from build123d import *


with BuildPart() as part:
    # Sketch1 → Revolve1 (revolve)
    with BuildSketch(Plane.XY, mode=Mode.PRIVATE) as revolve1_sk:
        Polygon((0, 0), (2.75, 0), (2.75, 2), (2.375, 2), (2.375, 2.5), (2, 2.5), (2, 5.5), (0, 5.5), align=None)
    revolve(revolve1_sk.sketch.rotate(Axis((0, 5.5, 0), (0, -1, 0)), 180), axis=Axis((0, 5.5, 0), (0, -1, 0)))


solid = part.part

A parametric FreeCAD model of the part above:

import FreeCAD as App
import Part
import Sketcher


def add_polygon(sketch, points):
    """Adds a closed chain of lines whose ends are joined by coincident constraints."""
    first, n = sketch.GeometryCount, len(points)
    for a, b in zip(points, points[1:] + points[:1]):
        sketch.addGeometry(Part.LineSegment(App.Vector(*a, 0), App.Vector(*b, 0)), False)
    for i in range(n):
        sketch.addConstraint(Sketcher.Constraint("Coincident", first + i, 2, first + (i + 1) % n, 1))

doc = App.newDocument("Part")
params = doc.addObject("Spreadsheet::Sheet", "Params")
for row, (alias, value) in enumerate([
    ("sketch1_width", "2 mm"),
    ("sketch1_height", "3 mm"),
    ("sketch1_height2", "0.5 mm"),
    ("sketch1_width2", "2.75 mm"),
    ("revolution_angle", "360 deg"),
], start=1):
    params.set(f"A{row}", alias)
    params.set(f"B{row}", "=" + value)
    params.setAlias(f"B{row}", alias)

body = doc.addObject("PartDesign::Body", "Body")

# Sketch on XY plane
sketch1 = doc.addObject("Sketcher::SketchObject", "Sketch")
body.addObject(sketch1)
sketch1.AttachmentSupport = (doc.XY_Plane, [""])
sketch1.MapMode = "FlatFace"
add_polygon(sketch1, [(0, 0), (2.75, 0), (2.75, 2), (2.38, 2), (2.38, 2.5), (2, 2.5), (2, 5.5), (0, 5.5)])  # lines 0-7
sketch1.addConstraint(Sketcher.Constraint("Horizontal", 0))
sketch1.addConstraint(Sketcher.Constraint("Vertical", 1))
sketch1.addConstraint(Sketcher.Constraint("Horizontal", 2))
sketch1.addConstraint(Sketcher.Constraint("Vertical", 3))
sketch1.addConstraint(Sketcher.Constraint("Horizontal", 4))
sketch1.addConstraint(Sketcher.Constraint("Vertical", 5))
sketch1.addConstraint(Sketcher.Constraint("Horizontal", 6))
sketch1.addConstraint(Sketcher.Constraint("Vertical", 7))
sketch1.addConstraint(Sketcher.Constraint("Coincident", 7, 2, -1, 1))
sketch1.addConstraint(Sketcher.Constraint("Equal", 2, 4))
sketch1.addConstraint(Sketcher.Constraint("Equal", 6, 1))
sketch1.addConstraint(Sketcher.Constraint("DistanceX", 6, 2, 6, 1, 2.0))
sketch1.addConstraint(Sketcher.Constraint("DistanceY", 5, 1, 5, 2, 3.0))
sketch1.addConstraint(Sketcher.Constraint("DistanceY", 3, 1, 3, 2, 0.5))
sketch1.addConstraint(Sketcher.Constraint("DistanceX", 0, 1, 0, 2, 2.75))
sketch1.setExpression("Constraints[19]", "Params.sketch1_width")
sketch1.setExpression("Constraints[20]", "Params.sketch1_height")
sketch1.setExpression("Constraints[21]", "Params.sketch1_height2")
sketch1.setExpression("Constraints[22]", "Params.sketch1_width2")
revolution = doc.addObject("PartDesign::Revolution", "Revolution")
body.addObject(revolution)
revolution.Profile = sketch1
revolution.ReferenceAxis = (sketch1, ["V_Axis"])
revolution.setExpression("Angle", "Params.revolution_angle")

doc.recompute()
